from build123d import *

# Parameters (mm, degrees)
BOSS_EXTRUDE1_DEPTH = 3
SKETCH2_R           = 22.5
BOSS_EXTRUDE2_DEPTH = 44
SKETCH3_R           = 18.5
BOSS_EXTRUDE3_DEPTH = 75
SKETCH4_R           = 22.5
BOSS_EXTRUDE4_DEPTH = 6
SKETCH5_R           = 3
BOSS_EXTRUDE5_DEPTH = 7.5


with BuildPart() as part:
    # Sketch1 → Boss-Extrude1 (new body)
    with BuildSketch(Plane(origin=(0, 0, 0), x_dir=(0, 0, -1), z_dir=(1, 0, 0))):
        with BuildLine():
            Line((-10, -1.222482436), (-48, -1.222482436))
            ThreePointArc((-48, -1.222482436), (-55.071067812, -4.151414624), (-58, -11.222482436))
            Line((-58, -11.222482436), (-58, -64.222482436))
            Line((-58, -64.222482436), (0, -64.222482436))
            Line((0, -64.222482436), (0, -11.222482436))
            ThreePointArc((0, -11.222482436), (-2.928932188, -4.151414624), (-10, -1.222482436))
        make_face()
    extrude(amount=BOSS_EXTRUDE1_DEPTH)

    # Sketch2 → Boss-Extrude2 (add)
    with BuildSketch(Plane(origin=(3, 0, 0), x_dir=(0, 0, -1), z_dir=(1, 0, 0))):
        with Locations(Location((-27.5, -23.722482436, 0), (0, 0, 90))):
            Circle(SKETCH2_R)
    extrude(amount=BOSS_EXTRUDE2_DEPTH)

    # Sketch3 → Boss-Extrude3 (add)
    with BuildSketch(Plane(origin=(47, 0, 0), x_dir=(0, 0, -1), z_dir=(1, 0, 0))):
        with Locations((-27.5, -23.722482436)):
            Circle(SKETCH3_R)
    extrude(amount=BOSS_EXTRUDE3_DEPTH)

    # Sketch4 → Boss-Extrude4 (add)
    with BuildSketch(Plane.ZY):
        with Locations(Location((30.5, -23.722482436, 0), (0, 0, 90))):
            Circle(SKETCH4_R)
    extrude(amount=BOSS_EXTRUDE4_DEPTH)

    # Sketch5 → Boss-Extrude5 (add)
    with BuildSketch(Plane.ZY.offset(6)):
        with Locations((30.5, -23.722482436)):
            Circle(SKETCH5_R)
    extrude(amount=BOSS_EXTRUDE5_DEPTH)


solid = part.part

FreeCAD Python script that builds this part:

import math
import FreeCAD as App
import Part
import Sketcher
from FreeCAD import Vector
Q = App.Units.Quantity

doc = App.newDocument("Part")
body = doc.addObject("PartDesign::Body", "Body")

# Sketch on YZ plane
sketch1 = doc.addObject("Sketcher::SketchObject", "Sketch")
body.addObject(sketch1)
sketch1.AttachmentSupport = (doc.YZ_Plane, [""])
sketch1.MapMode = "FlatFace"
sketch1.addGeometry([
    Part.LineSegment(Vector(-1, 10, 0), Vector(-1, 48, 0)),  # 0
    Part.ArcOfCircle(Part.Circle(Vector(-11, 48, 0), Vector(0, 0, 1), 10), math.radians(0), math.radians(90)),  # 1
    Part.LineSegment(Vector(-11, 58, 0), Vector(-64, 58, 0)),  # 2
    Part.LineSegment(Vector(-64, 58, 0), Vector(-64, 0, 0)),  # 3
    Part.LineSegment(Vector(-64, 0, 0), Vector(-11, 0, 0)),  # 4
    Part.ArcOfCircle(Part.Circle(Vector(-11, 10, 0), Vector(0, 0, 1), 10), math.radians(-90), math.radians(0)),  # 5
], False)
sketch1.addConstraint([
    Sketcher.Constraint("Tangent", 0, 2, 1, 1),
    Sketcher.Constraint("Tangent", 1, 2, 2, 1),
    Sketcher.Constraint("Coincident", 2, 2, 3, 1),
    Sketcher.Constraint("Coincident", 3, 2, 4, 1),
    Sketcher.Constraint("Tangent", 4, 2, 5, 1),
    Sketcher.Constraint("Tangent", 5, 2, 0, 1),
    Sketcher.Constraint("Vertical", 0),
    Sketcher.Constraint("Horizontal", 2),
    Sketcher.Constraint("Vertical", 3),
    Sketcher.Constraint("Horizontal", 4),
    Sketcher.Constraint("Equal", 1, 5),
    Sketcher.Constraint("PointOnObject", 3, 2, -1),
    Sketcher.Constraint("Radius", 1, Q("10 mm")),
    Sketcher.Constraint("DistanceX", 2, 2, 2, 1, Q("53 mm")),
    Sketcher.Constraint("DistanceY", 0, 1, 0, 2, Q("38 mm")),
    Sketcher.Constraint("DistanceX", 1, 3, -1, 1, Q("11.222482 mm")),
])
pad1 = doc.addObject("PartDesign::Pad", "Pad")
body.addObject(pad1)
pad1.Profile = sketch1
pad1.Length = 3

# Sketch on YZ plane
sketch2 = doc.addObject("Sketcher::SketchObject", "Sketch001")
body.addObject(sketch2)
sketch2.AttachmentSupport = (doc.YZ_Plane, [""])
sketch2.MapMode = "FlatFace"
sketch2.AttachmentOffset = App.Placement(Vector(0, 0, 3), App.Rotation())
sketch2.addGeometry(Part.Circle(Vector(-24, 28, 0), Vector(0, 0, 1), 22), False)
sketch2.addConstraint([
    Sketcher.Constraint("Diameter", 0, Q("45 mm")),
    Sketcher.Constraint("DistanceY", -1, 1, 0, 3, Q("27.5 mm")),
    Sketcher.Constraint("DistanceX", 0, 3, -1, 1, Q("23.722482 mm")),
])
pad2 = doc.addObject("PartDesign::Pad", "Pad001")
body.addObject(pad2)
pad2.Profile = sketch2
pad2.Length = 44

# Sketch on YZ plane
sketch3 = doc.addObject("Sketcher::SketchObject", "Sketch002")
body.addObject(sketch3)
sketch3.AttachmentSupport = (doc.YZ_Plane, [""])
sketch3.MapMode = "FlatFace"
sketch3.AttachmentOffset = App.Placement(Vector(0, 0, 47), App.Rotation())
sketch3.addGeometry(Part.Circle(Vector(-24, 28, 0), Vector(0, 0, 1), 18), False)
sketch3.addConstraint([
    Sketcher.Constraint("Diameter", 0, Q("37 mm")),
    Sketcher.Constraint("DistanceY", -1, 1, 0, 3, Q("27.5 mm")),
    Sketcher.Constraint("DistanceX", 0, 3, -1, 1, Q("23.722482 mm")),
])
pad3 = doc.addObject("PartDesign::Pad", "Pad002")
body.addObject(pad3)
pad3.Profile = sketch3
pad3.Length = 75

# Sketch on YZ plane
sketch4 = doc.addObject("Sketcher::SketchObject", "Sketch003")
body.addObject(sketch4)
sketch4.AttachmentSupport = (doc.YZ_Plane, [""])
sketch4.MapMode = "FlatFace"
sketch4.addGeometry(Part.Circle(Vector(-24, 30, 0), Vector(0, 0, 1), 22), False)
sketch4.addConstraint([
    Sketcher.Constraint("Diameter", 0, Q("45 mm")),
    Sketcher.Constraint("DistanceY", -1, 1, 0, 3, Q("30.5 mm")),
    Sketcher.Constraint("DistanceX", 0, 3, -1, 1, Q("23.722482 mm")),
])
pad4 = doc.addObject("PartDesign::Pad", "Pad003")
body.addObject(pad4)
pad4.Profile = sketch4
pad4.Length = 6
pad4.Reversed = True

# Sketch on YZ plane
sketch5 = doc.addObject("Sketcher::SketchObject", "Sketch004")
body.addObject(sketch5)
sketch5.AttachmentSupport = (doc.YZ_Plane, [""])
sketch5.MapMode = "FlatFace"
sketch5.AttachmentOffset = App.Placement(Vector(0, 0, -6), App.Rotation())
sketch5.addGeometry(Part.Circle(Vector(-23.7, 30.5, 0), Vector(0, 0, 1), 3), False)
sketch5.addConstraint([
    Sketcher.Constraint("Diameter", 0, Q("6 mm")),
    Sketcher.Constraint("DistanceY", -1, 1, 0, 3, Q("30.5 mm")),
    Sketcher.Constraint("DistanceX", 0, 3, -1, 1, Q("23.722482 mm")),
])
pad5 = doc.addObject("PartDesign::Pad", "Pad004")
body.addObject(pad5)
pad5.Profile = sketch5
pad5.Length = 7.5
pad5.Reversed = True

doc.recompute()
